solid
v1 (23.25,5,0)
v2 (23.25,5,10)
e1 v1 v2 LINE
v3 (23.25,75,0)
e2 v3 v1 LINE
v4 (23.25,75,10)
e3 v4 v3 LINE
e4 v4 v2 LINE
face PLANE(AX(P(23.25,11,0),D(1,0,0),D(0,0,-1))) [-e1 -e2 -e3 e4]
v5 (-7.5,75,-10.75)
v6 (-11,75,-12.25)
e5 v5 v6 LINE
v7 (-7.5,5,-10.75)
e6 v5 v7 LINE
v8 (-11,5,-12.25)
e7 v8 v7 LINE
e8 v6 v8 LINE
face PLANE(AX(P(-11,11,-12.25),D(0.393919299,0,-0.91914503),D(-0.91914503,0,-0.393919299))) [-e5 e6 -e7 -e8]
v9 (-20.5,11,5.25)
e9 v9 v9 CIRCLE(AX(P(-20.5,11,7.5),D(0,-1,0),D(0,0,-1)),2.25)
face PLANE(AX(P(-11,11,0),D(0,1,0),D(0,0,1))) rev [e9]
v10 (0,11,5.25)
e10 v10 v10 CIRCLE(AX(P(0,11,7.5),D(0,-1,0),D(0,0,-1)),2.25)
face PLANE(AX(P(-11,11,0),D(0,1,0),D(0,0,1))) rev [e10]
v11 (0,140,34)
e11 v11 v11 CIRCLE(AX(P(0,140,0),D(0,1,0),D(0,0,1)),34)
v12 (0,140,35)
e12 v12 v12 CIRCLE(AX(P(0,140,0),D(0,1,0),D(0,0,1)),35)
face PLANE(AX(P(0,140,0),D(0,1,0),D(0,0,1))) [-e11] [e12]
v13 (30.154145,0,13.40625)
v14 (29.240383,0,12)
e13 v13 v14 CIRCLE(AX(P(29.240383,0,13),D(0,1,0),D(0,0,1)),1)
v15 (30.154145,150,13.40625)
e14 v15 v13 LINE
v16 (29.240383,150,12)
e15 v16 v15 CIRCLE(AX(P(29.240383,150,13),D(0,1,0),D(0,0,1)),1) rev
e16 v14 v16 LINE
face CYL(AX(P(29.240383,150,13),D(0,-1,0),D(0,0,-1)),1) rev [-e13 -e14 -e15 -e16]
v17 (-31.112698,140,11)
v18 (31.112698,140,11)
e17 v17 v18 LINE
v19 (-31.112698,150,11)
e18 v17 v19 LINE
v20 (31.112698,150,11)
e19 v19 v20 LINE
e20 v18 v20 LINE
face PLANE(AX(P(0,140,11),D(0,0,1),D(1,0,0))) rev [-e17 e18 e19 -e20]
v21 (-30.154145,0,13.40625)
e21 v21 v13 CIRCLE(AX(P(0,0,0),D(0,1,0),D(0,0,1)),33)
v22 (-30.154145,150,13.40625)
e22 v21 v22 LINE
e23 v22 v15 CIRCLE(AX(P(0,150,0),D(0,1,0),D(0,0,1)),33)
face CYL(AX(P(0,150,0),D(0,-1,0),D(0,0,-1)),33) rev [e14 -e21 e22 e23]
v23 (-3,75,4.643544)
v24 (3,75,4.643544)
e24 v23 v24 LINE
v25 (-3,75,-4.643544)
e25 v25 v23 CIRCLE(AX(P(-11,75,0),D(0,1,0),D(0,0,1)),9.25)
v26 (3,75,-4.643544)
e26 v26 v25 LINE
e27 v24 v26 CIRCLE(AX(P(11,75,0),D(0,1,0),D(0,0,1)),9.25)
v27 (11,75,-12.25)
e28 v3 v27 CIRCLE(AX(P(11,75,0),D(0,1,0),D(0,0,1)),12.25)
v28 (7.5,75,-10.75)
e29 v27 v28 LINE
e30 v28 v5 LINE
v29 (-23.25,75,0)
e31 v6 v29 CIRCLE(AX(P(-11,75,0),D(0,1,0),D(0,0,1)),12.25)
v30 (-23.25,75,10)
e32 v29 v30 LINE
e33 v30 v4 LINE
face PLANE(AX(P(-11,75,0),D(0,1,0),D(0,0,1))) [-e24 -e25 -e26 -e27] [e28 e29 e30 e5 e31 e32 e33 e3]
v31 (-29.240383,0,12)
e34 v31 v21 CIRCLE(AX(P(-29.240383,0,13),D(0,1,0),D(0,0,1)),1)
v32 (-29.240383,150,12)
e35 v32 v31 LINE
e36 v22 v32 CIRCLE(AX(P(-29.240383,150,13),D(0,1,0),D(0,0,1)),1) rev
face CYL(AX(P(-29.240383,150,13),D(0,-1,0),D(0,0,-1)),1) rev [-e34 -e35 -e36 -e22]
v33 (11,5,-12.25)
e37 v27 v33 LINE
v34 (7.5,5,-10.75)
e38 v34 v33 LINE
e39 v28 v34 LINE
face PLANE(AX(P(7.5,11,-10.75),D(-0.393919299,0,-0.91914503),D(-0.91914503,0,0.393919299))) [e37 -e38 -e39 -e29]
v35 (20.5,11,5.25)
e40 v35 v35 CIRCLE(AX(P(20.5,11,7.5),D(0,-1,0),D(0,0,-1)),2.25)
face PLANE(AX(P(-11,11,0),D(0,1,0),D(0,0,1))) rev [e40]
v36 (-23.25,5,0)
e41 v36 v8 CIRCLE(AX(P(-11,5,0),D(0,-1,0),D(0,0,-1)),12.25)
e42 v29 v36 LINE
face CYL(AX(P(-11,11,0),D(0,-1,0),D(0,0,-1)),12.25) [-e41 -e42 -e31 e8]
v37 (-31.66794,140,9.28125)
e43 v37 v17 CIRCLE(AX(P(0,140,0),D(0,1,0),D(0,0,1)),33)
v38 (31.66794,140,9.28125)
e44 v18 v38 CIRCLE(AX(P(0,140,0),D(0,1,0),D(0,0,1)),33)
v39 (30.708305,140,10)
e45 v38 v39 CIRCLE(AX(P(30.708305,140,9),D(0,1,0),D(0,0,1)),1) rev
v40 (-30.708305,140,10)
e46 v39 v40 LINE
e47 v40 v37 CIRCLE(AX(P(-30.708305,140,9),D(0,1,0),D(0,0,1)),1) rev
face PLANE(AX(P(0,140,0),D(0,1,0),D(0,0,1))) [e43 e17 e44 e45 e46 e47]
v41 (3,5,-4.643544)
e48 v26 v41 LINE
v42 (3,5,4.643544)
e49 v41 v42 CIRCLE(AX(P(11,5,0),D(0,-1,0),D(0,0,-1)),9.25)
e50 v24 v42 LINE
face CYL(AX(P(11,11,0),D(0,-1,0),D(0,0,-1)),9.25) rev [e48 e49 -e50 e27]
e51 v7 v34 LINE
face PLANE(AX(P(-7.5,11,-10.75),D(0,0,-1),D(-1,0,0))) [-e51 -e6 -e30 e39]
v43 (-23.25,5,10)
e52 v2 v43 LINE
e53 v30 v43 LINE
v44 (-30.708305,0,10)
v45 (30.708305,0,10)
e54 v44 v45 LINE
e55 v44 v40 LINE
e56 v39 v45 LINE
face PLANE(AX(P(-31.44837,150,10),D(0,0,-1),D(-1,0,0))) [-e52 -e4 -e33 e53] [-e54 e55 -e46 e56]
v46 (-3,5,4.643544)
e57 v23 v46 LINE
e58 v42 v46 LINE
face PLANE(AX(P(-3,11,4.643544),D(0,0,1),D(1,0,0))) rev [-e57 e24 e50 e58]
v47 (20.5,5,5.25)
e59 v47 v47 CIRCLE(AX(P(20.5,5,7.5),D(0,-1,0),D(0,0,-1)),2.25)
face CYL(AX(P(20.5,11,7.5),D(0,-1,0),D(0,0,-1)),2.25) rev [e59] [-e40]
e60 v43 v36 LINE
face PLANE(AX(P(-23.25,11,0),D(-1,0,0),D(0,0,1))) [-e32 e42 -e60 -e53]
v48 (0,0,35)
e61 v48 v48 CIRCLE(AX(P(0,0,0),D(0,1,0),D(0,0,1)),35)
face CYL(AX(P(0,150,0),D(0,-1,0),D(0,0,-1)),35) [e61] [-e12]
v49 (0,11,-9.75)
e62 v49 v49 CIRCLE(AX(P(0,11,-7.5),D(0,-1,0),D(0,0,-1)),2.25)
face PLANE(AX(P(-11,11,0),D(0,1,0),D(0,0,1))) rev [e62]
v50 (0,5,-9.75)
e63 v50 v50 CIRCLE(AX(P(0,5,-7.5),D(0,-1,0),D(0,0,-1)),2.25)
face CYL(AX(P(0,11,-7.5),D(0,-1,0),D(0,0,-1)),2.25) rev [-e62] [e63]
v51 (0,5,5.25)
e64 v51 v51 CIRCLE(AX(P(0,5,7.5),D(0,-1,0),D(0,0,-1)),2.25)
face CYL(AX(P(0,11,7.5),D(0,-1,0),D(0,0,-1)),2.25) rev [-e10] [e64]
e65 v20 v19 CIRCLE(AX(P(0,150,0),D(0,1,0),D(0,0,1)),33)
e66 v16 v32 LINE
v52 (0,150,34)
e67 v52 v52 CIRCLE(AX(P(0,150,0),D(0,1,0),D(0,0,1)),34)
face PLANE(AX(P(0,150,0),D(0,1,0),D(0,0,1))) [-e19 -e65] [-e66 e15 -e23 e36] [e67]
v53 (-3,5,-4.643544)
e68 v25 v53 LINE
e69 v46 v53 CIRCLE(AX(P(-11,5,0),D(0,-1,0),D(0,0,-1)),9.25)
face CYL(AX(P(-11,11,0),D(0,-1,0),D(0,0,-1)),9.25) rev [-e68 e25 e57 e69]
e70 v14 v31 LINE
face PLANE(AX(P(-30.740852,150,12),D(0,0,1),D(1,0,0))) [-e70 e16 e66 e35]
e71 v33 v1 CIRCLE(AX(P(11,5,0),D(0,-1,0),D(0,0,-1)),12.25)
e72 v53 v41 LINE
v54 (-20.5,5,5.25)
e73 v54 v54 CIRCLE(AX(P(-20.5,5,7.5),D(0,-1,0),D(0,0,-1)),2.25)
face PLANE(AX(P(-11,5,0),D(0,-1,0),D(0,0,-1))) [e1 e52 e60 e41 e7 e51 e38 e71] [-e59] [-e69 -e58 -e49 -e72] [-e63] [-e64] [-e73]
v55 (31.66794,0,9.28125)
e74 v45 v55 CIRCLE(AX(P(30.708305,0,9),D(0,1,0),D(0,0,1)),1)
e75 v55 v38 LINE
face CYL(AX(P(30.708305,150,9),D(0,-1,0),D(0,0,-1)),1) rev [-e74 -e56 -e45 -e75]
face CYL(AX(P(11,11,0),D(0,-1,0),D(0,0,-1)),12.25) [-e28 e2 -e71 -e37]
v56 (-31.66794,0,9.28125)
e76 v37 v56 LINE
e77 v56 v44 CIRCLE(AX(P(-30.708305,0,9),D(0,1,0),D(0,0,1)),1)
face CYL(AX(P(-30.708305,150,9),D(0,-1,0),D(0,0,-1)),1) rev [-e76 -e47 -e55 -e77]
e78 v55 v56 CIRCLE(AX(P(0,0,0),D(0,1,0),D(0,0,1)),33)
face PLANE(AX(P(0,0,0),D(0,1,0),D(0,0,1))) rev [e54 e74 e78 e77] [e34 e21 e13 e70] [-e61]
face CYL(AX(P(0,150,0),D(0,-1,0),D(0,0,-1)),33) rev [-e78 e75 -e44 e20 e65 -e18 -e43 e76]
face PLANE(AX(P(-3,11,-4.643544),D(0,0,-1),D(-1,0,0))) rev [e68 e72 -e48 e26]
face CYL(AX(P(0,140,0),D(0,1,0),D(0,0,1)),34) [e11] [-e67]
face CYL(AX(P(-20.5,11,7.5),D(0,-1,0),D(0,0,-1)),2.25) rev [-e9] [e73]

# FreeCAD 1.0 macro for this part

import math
import FreeCAD as App
import Part
import Sketcher


def edges_at(feature, points):
    """Names of the edges that pass closest to the given points."""
    edges = feature.Shape.Edges
    near = lambda p: min(range(len(edges)), key=lambda i: edges[i].distToShape(Part.Vertex(*p))[0])
    return sorted({f"Edge{near(p) + 1}" for p in points})

doc = App.newDocument("Part")
body = doc.addObject("PartDesign::Body", "Body")

# Sketch on XZ plane
sketch1 = doc.addObject("Sketcher::SketchObject", "Sketch")
body.addObject(sketch1)
sketch1.AttachmentSupport = (doc.XZ_Plane, [""])
sketch1.MapMode = "FlatFace"
sketch1.addGeometry([
    Part.Circle(App.Vector(0, 0, 0), App.Vector(0, 0, 1), 35),  # 0
    Part.LineSegment(App.Vector(31, 10, 0), App.Vector(-31, 10, 0)),  # 1
    Part.ArcOfCircle(Part.Circle(App.Vector(0, 0, 0), App.Vector(0, 0, 1), 33), math.radians(162), math.radians(378)),  # 2
    Part.ArcOfCircle(Part.Circle(App.Vector(0, 0, 0), App.Vector(0, 0, 1), 33), math.radians(21), math.radians(159)),  # 3
    Part.LineSegment(App.Vector(-31, 12, 0), App.Vector(31, 12, 0)),  # 4
], False)
sketch1.addConstraint([
    Sketcher.Constraint("Coincident", 1, 1, 2, 2),
    Sketcher.Constraint("Coincident", 2, 1, 1, 2),
    Sketcher.Constraint("Coincident", 3, 1, 4, 2),
    Sketcher.Constraint("Coincident", 4, 1, 3, 2),
    Sketcher.Constraint("Horizontal", 1),
    Sketcher.Constraint("Horizontal", 4),
    Sketcher.Constraint("Coincident", 0, 3, -1, 1),
    Sketcher.Constraint("Coincident", 2, 3, -1, 1),
    Sketcher.Constraint("Coincident", 3, 3, -1, 1),
    Sketcher.Constraint("Equal", 2, 3),
    Sketcher.Constraint("Diameter", 0, 70.0),
    Sketcher.Constraint("Radius", 2, 33.0),
    Sketcher.Constraint("DistanceY", -1, 1, 1, 1, 10.0),
    Sketcher.Constraint("DistanceY", -1, 1, 3, 1, 12.0),
])
pad1 = doc.addObject("PartDesign::Pad", "Pad")
body.addObject(pad1)
pad1.Profile = sketch1
pad1.Length = 150
pad1.Reversed = True
doc.recompute()

fillet = doc.addObject("PartDesign::Fillet", "Fillet")
body.addObject(fillet)
fillet.Base = (pad1, edges_at(pad1, [
    (-30.741, 75, 12),
    (30.741, 75, 12),
    (31.448, 75, 10),
    (-31.448, 75, 10),
]))
fillet.Radius = 1

# Sketch on XZ plane
sketch2 = doc.addObject("Sketcher::SketchObject", "Sketch001")
body.addObject(sketch2)
sketch2.AttachmentSupport = (doc.XZ_Plane, [""])
sketch2.MapMode = "FlatFace"
sketch2.AttachmentOffset = App.Placement(App.Vector(0, 0, -140), App.Rotation())
sketch2.addGeometry([
    Part.Circle(App.Vector(0, 0, 0), App.Vector(0, 0, 1), 35),  # 0
    Part.Circle(App.Vector(0, 0, 0), App.Vector(0, 0, 1), 34),  # 1
    Part.LineSegment(App.Vector(30.7, 10, 0), App.Vector(-30.7, 10, 0)),  # 2
    Part.ArcOfCircle(Part.Circle(App.Vector(-30.7, 9, 0), App.Vector(0, 0, 1), 1), math.radians(90), math.radians(164)),  # 3
    Part.ArcOfCircle(Part.Circle(App.Vector(0, 0, 0), App.Vector(0, 0, 1), 33), math.radians(160.53), math.radians(163.67)),  # 4
    Part.LineSegment(App.Vector(-31.1, 11, 0), App.Vector(31.1, 11, 0)),  # 5
    Part.ArcOfCircle(Part.Circle(App.Vector(0, 0, 0), App.Vector(0, 0, 1), 33), math.radians(16.33), math.radians(19.47)),  # 6
    Part.ArcOfCircle(Part.Circle(App.Vector(30.7, 9, 0), App.Vector(0, 0, 1), 1), math.radians(16), math.radians(90)),  # 7
], False)
sketch2.addConstraint([
    Sketcher.Constraint("Tangent", 2, 2, 3, 1),
    Sketcher.Constraint("Tangent", 3, 2, 4, 2),
    Sketcher.Constraint("Coincident", 4, 1, 5, 1),
    Sketcher.Constraint("Coincident", 5, 2, 6, 2),
    Sketcher.Constraint("Tangent", 6, 1, 7, 1),
    Sketcher.Constraint("Tangent", 7, 2, 2, 1),
    Sketcher.Constraint("Horizontal", 2),
    Sketcher.Constraint("Horizontal", 5),
    Sketcher.Constraint("Coincident", 0, 3, -1, 1),
    Sketcher.Constraint("Coincident", 1, 3, -1, 1),
    Sketcher.Constraint("Coincident", 4, 3, -1, 1),
    Sketcher.Constraint("Coincident", 6, 3, -1, 1),
    Sketcher.Constraint("Equal", 4, 6),
    Sketcher.Constraint("Equal", 3, 7),
    Sketcher.Constraint("Diameter", 0, 70.0),
    Sketcher.Constraint("Diameter", 1, 68.0),
    Sketcher.Constraint("Radius", 3, 1.0),
    Sketcher.Constraint("Radius", 4, 33.000001),
    Sketcher.Constraint("DistanceY", -1, 1, 3, 3, 9.0),
    Sketcher.Constraint("DistanceY", -1, 1, 4, 1, 11.0),
])
pocket1 = doc.addObject("PartDesign::Pocket", "Pocket")
body.addObject(pocket1)
pocket1.Profile = sketch2
pocket1.Length = 10

# Sketch on XZ plane
sketch3 = doc.addObject("Sketcher::SketchObject", "Sketch002")
body.addObject(sketch3)
sketch3.AttachmentSupport = (doc.XZ_Plane, [""])
sketch3.MapMode = "FlatFace"
sketch3.AttachmentOffset = App.Placement(App.Vector(0, 0, -5), App.Rotation())
sketch3.addGeometry([
    Part.LineSegment(App.Vector(23.2, 10, 0), App.Vector(-23.2, 10, 0)),  # 0
    Part.LineSegment(App.Vector(-23.2, 10, 0), App.Vector(-23.2, 0, 0)),  # 1
    Part.ArcOfCircle(Part.Circle(App.Vector(-11, 0, 0), App.Vector(0, 0, 1), 12.2), math.radians(180), math.radians(270)),  # 2
    Part.LineSegment(App.Vector(-11, -12.2, 0), App.Vector(-7.5, -10.8, 0)),  # 3
    Part.LineSegment(App.Vector(-7.5, -10.8, 0), App.Vector(7.5, -10.8, 0)),  # 4
    Part.LineSegment(App.Vector(7.5, -10.8, 0), App.Vector(11, -12.2, 0)),  # 5
    Part.ArcOfCircle(Part.Circle(App.Vector(11, 0, 0), App.Vector(0, 0, 1), 12.2), math.radians(-90), math.radians(0)),  # 6
    Part.LineSegment(App.Vector(23.2, 0, 0), App.Vector(23.2, 10, 0)),  # 7
    Part.Circle(App.Vector(0, -7.5, 0), App.Vector(0, 0, 1), 2.2),  # 8
    Part.Circle(App.Vector(20.5, 7.5, 0), App.Vector(0, 0, 1), 2.2),  # 9
    Part.LineSegment(App.Vector(-3, 4.6, 0), App.Vector(3, 4.6, 0)),  # 10
    Part.ArcOfCircle(Part.Circle(App.Vector(11, 0, 0), App.Vector(0, 0, 1), 9.2), math.radians(-150), math.radians(150)),  # 11
    Part.LineSegment(App.Vector(3, -4.6, 0), App.Vector(-3, -4.6, 0)),  # 12
    Part.ArcOfCircle(Part.Circle(App.Vector(-11, 0, 0), App.Vector(0, 0, 1), 9.2), math.radians(30), math.radians(330)),  # 13
    Part.Circle(App.Vector(0, 7.5, 0), App.Vector(0, 0, 1), 2.2),  # 14
    Part.Circle(App.Vector(-20.5, 7.5, 0), App.Vector(0, 0, 1), 2.2),  # 15
], False)
sketch3.addConstraint([
    Sketcher.Constraint("Coincident", 0, 2, 1, 1),
    Sketcher.Constraint("Tangent", 1, 2, 2, 1),
    Sketcher.Constraint("Coincident", 2, 2, 3, 1),
    Sketcher.Constraint("Coincident", 3, 2, 4, 1),
    Sketcher.Constraint("Coincident", 4, 2, 5, 1),
    Sketcher.Constraint("Coincident", 5, 2, 6, 1),
    Sketcher.Constraint("Tangent", 6, 2, 7, 1),
    Sketcher.Constraint("Coincident", 7, 2, 0, 1),
    Sketcher.Constraint("Coincident", 10, 2, 11, 2),
    Sketcher.Constraint("Coincident", 11, 1, 12, 1),
    Sketcher.Constraint("Coincident", 12, 2, 13, 2),
    Sketcher.Constraint("Coincident", 13, 1, 10, 1),
    Sketcher.Constraint("Horizontal", 0),
    Sketcher.Constraint("Vertical", 1),
    Sketcher.Constraint("Horizontal", 4),
    Sketcher.Constraint("Vertical", 7),
    Sketcher.Constraint("Horizontal", 10),
    Sketcher.Constraint("Horizontal", 12),
    Sketcher.Constraint("Coincident", 11, 3, 6, 3),
    Sketcher.Constraint("Coincident", 13, 3, 2, 3),
    Sketcher.Constraint("Equal", 2, 6),
    Sketcher.Constraint("Equal", 8, 9),
    Sketcher.Constraint("Equal", 11, 13),
    Sketcher.Constraint("Equal", 9, 14),
    Sketcher.Constraint("Equal", 14, 15),
    Sketcher.Constraint("Symmetric", 2, 3, 6, 3, -1, 1),
    Sketcher.Constraint("Symmetric", 8, 3, 14, 3, -1, 1),
    Sketcher.Constraint("Symmetric", 9, 3, 15, 3, -2),
    Sketcher.Constraint("Symmetric", 2, 2, 5, 2, -2),
    Sketcher.Constraint("PointOnObject", 8, 3, -2),
    Sketcher.Constraint("Horizontal", 9, 3, 14, 3),
    Sketcher.Constraint("Vertical", 13, 3, 2, 2),
    Sketcher.Constraint("Vertical", 10, 2, 11, 1),
    Sketcher.Constraint("Equal", 3, 5),
    Sketcher.Constraint("Diameter", 8, 4.5),
    Sketcher.Constraint("DistanceX", 4, 1, 4, 2, 15.0),
    Sketcher.Constraint("DistanceX", 10, 1, 10, 2, 6.0),
    Sketcher.Constraint("DistanceY", 1, 2, 1, 1, 10.0),
    Sketcher.Constraint("Radius", 2, 12.25),
    Sketcher.Constraint("Radius", 11, 9.25),
    Sketcher.Constraint("DistanceX", 0, 2, 0, 1, 46.5),
    Sketcher.Constraint("DistanceY", 8, 3, 9, 3, 15.0),
    Sketcher.Constraint("DistanceX", -1, 1, 9, 3, 20.5),
    Sketcher.Constraint("DistanceY", 2, 2, 3, 2, 1.5),
])
pad2 = doc.addObject("PartDesign::Pad", "Pad001")
body.addObject(pad2)
pad2.Profile = sketch3
pad2.Length = 6
pad2.Reversed = True

# Sketch on XZ plane
sketch4 = doc.addObject("Sketcher::SketchObject", "Sketch003")
body.addObject(sketch4)
sketch4.AttachmentSupport = (doc.XZ_Plane, [""])
sketch4.MapMode = "FlatFace"
sketch4.AttachmentOffset = App.Placement(App.Vector(0, 0, -11), App.Rotation())
sketch4.addGeometry([
    Part.LineSegment(App.Vector(-23.2, 0, 0), App.Vector(-23.2, 10, 0)),  # 0
    Part.LineSegment(App.Vector(-23.2, 10, 0), App.Vector(23.2, 10, 0)),  # 1
    Part.LineSegment(App.Vector(23.2, 10, 0), App.Vector(23.2, 0, 0)),  # 2
    Part.ArcOfCircle(Part.Circle(App.Vector(11, 0, 0), App.Vector(0, 0, 1), 12.2), math.radians(-90), math.radians(0)),  # 3
    Part.LineSegment(App.Vector(11, -12.2, 0), App.Vector(7.5, -10.8, 0)),  # 4
    Part.LineSegment(App.Vector(7.5, -10.8, 0), App.Vector(-7.5, -10.8, 0)),  # 5
    Part.LineSegment(App.Vector(-7.5, -10.8, 0), App.Vector(-11, -12.2, 0)),  # 6
    Part.ArcOfCircle(Part.Circle(App.Vector(-11, 0, 0), App.Vector(0, 0, 1), 12.2), math.radians(180), math.radians(270)),  # 7
    Part.ArcOfCircle(Part.Circle(App.Vector(11, 0, 0), App.Vector(0, 0, 1), 9.2), math.radians(-150), math.radians(150)),  # 8
    Part.LineSegment(App.Vector(3, 4.6, 0), App.Vector(-3, 4.6, 0)),  # 9
    Part.ArcOfCircle(Part.Circle(App.Vector(-11, 0, 0), App.Vector(0, 0, 1), 9.2), math.radians(30), math.radians(330)),  # 10
    Part.LineSegment(App.Vector(-3, -4.6, 0), App.Vector(3, -4.6, 0)),  # 11
], False)
sketch4.addConstraint([
    Sketcher.Constraint("Coincident", 0, 2, 1, 1),
    Sketcher.Constraint("Coincident", 1, 2, 2, 1),
    Sketcher.Constraint("Tangent", 2, 2, 3, 2),
    Sketcher.Constraint("Coincident", 3, 1, 4, 1),
    Sketcher.Constraint("Coincident", 4, 2, 5, 1),
    Sketcher.Constraint("Coincident", 5, 2, 6, 1),
    Sketcher.Constraint("Coincident", 6, 2, 7, 2),
    Sketcher.Constraint("Tangent", 7, 1, 0, 1),
    Sketcher.Constraint("Coincident", 8, 2, 9, 1),
    Sketcher.Constraint("Coincident", 9, 2, 10, 1),
    Sketcher.Constraint("Coincident", 10, 2, 11, 1),
    Sketcher.Constraint("Coincident", 11, 2, 8, 1),
    Sketcher.Constraint("Vertical", 0),
    Sketcher.Constraint("Horizontal", 1),
    Sketcher.Constraint("Vertical", 2),
    Sketcher.Constraint("Horizontal", 5),
    Sketcher.Constraint("Horizontal", 9),
    Sketcher.Constraint("Horizontal", 11),
    Sketcher.Constraint("Coincident", 8, 3, 3, 3),
    Sketcher.Constraint("Coincident", 10, 3, 7, 3),
    Sketcher.Constraint("Equal", 3, 7),
    Sketcher.Constraint("Equal", 8, 10),
    Sketcher.Constraint("Symmetric", 3, 3, 7, 3, -1, 1),
    Sketcher.Constraint("Symmetric", 3, 1, 6, 2, -2),
    Sketcher.Constraint("Vertical", 8, 3, 3, 1),
    Sketcher.Constraint("Vertical", 9, 2, 10, 2),
    Sketcher.Constraint("Equal", 4, 6),
    Sketcher.Constraint("DistanceX", 5, 2, 5, 1, 15.0),
    Sketcher.Constraint("DistanceX", 9, 2, 9, 1, 6.0),
    Sketcher.Constraint("DistanceY", 0, 1, 0, 2, 10.0),
    Sketcher.Constraint("Radius", 3, 12.25),
    Sketcher.Constraint("Radius", 8, 9.25),
    Sketcher.Constraint("DistanceX", 1, 1, 1, 2, 46.5),
    Sketcher.Constraint("DistanceY", 3, 1, 4, 2, 1.5),
])
pad3 = doc.addObject("PartDesign::Pad", "Pad002")
body.addObject(pad3)
pad3.Profile = sketch4
pad3.Length = 64
pad3.Reversed = True

doc.recompute()
